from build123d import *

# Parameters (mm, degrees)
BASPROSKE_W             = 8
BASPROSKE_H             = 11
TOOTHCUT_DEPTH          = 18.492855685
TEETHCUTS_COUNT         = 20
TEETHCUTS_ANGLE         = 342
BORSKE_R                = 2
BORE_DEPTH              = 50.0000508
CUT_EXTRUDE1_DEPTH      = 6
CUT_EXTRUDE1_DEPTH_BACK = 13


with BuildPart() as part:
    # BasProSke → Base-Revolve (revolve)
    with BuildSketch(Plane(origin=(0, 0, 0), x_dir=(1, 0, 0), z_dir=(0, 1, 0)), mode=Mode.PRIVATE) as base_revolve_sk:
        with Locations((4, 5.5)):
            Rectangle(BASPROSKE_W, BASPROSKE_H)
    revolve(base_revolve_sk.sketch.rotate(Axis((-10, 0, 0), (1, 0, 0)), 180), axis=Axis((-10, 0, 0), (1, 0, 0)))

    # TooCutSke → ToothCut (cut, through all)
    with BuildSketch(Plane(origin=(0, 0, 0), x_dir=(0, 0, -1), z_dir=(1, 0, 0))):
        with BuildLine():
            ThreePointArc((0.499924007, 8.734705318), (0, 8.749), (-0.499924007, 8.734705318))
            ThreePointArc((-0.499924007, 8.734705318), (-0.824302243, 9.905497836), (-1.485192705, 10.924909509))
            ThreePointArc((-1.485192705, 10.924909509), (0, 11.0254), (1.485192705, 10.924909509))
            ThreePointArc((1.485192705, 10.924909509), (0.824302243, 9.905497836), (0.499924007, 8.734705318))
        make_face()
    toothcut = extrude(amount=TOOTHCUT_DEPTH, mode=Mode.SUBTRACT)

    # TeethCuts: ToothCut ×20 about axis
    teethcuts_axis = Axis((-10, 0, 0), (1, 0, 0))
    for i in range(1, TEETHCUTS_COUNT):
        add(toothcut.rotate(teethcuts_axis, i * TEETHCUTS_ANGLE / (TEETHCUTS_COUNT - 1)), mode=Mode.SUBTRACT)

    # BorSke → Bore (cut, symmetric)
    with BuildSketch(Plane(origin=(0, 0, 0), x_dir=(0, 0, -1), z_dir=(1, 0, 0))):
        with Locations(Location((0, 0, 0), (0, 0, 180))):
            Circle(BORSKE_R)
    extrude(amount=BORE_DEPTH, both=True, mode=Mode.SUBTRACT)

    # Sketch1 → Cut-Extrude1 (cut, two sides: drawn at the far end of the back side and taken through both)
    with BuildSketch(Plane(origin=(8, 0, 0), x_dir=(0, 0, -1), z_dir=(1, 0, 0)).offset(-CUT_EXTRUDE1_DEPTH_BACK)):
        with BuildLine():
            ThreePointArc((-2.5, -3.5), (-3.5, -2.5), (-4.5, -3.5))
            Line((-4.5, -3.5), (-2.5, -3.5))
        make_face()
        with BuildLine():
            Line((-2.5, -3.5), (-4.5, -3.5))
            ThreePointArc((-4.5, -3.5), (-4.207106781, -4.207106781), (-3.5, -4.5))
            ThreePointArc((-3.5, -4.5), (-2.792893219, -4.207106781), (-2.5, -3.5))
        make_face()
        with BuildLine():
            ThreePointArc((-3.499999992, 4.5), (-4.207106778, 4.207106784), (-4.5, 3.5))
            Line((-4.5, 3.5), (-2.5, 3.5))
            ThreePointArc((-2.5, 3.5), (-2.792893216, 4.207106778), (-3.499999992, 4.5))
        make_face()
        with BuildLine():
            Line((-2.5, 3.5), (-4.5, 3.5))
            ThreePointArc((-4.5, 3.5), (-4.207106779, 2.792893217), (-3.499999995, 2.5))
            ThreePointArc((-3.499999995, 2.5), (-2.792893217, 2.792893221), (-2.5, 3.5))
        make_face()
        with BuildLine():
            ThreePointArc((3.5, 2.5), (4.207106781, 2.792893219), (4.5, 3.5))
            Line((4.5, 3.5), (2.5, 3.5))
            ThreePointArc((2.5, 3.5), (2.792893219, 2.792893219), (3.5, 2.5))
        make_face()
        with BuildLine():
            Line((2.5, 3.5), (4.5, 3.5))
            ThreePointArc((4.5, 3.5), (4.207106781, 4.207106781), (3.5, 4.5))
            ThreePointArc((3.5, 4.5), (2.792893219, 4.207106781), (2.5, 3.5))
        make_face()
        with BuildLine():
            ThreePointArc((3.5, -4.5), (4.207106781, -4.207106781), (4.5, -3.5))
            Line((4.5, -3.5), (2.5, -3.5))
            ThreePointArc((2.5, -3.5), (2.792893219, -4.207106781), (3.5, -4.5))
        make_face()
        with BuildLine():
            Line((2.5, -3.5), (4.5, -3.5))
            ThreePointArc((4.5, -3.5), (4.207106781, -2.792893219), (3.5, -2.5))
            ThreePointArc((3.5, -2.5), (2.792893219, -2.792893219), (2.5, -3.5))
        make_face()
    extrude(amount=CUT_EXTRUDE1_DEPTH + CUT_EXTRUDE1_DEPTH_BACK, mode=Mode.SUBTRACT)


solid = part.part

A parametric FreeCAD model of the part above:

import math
import FreeCAD as App
import Part
import Sketcher
from FreeCAD import Vector
Q = App.Units.Quantity


def add_polygon(sketch, points):
    """Adds a closed chain of lines whose ends are joined by coincident constraints."""
    first, n = sketch.GeometryCount, len(points)
    for a, b in zip(points, points[1:] + points[:1]):
        sketch.addGeometry(Part.LineSegment(App.Vector(*a, 0), App.Vector(*b, 0)), False)
    for i in range(n):
        sketch.addConstraint(Sketcher.Constraint("Coincident", first + i, 2, first + (i + 1) % n, 1))

doc = App.newDocument("Part")
body = doc.addObject("PartDesign::Body", "Body")

# Sketch on XZ plane
sketch1 = body.newObject("Sketcher::SketchObject", "Sketch")
sketch1.AttachmentSupport = (doc.getObject("XZ_Plane"), [""])
sketch1.MapMode = "FlatFace"
add_polygon(sketch1, [(0, -11), (0, 0), (8, 0), (8, -11)])  # lines 0-3
sketch1.addConstraint(Sketcher.Constraint("Vertical", 0))
sketch1.addConstraint(Sketcher.Constraint("Horizontal", 1))
sketch1.addConstraint(Sketcher.Constraint("Vertical", 2))
sketch1.addConstraint(Sketcher.Constraint("Horizontal", 3))
sketch1.addConstraint(Sketcher.Constraint("Coincident", 0, 2, -1, 1))
sketch1.addConstraint(Sketcher.Constraint("DistanceX", 1, 1, 1, 2, Q("8 mm")))
sketch1.addConstraint(Sketcher.Constraint("DistanceY", 0, 1, 0, 2, Q("11 mm")))
revolution = body.newObject("PartDesign::Revolution", "Revolution")
revolution.Profile = sketch1
revolution.ReferenceAxis = (sketch1, ["H_Axis"])
revolution.Angle = 360

# Sketch on YZ plane
sketch2 = body.newObject("Sketcher::SketchObject", "Sketch001")
sketch2.AttachmentSupport = (doc.getObject("YZ_Plane"), [""])
sketch2.MapMode = "FlatFace"
sketch2.addGeometry(Part.ArcOfCircle(Part.Circle(Vector(0, 0, 0), Vector(0, 0, 1), 8.749), math.radians(-3.275705), math.radians(3.275705)), False)
sketch2.addGeometry(Part.ArcOfCircle(Part.Circle(Vector(8.264487, -4.47219, 0), Vector(0, 0, 1), 4), math.radians(48.309566), math.radians(83.249005)), False)
sketch2.addGeometry(Part.ArcOfCircle(Part.Circle(Vector(0, 0, 0), Vector(0, 0, 1), 11.0254), math.radians(-7.741647), math.radians(7.741647)), False)
sketch2.addGeometry(Part.ArcOfCircle(Part.Circle(Vector(8.264487, 4.47219, 0), Vector(0, 0, 1), 4), math.radians(-83.249005), math.radians(-48.309566)), False)
sketch2.addConstraint(Sketcher.Constraint("Coincident", 0, 1, 1, 2))
sketch2.addConstraint(Sketcher.Constraint("Coincident", 1, 1, 2, 1))
sketch2.addConstraint(Sketcher.Constraint("Coincident", 2, 2, 3, 2))
sketch2.addConstraint(Sketcher.Constraint("Coincident", 3, 1, 0, 2))
sketch2.addConstraint(Sketcher.Constraint("Coincident", 0, 3, -1, 1))
sketch2.addConstraint(Sketcher.Constraint("Coincident", 2, 3, -1, 1))
sketch2.addConstraint(Sketcher.Constraint("Equal", 1, 3))
sketch2.addConstraint(Sketcher.Constraint("Symmetric", 1, 3, 3, 3, -1))
sketch2.addConstraint(Sketcher.Constraint("Radius", 1, Q("4 mm")))
sketch2.addConstraint(Sketcher.Constraint("Radius", 0, Q("8.749 mm")))
sketch2.addConstraint(Sketcher.Constraint("Radius", 2, Q("11.0254 mm")))
sketch2.addConstraint(Sketcher.Constraint("DistanceY", 1, 3, -1, 1, Q("4.47219 mm")))
sketch2.addConstraint(Sketcher.Constraint("DistanceX", -1, 1, 1, 1, Q("10.92491 mm")))
pocket1 = body.newObject("PartDesign::Pocket", "Pocket")
pocket1.Profile = sketch2
pocket1.Type = "ThroughAll"
pocket1.Reversed = True
doc.recompute()

polarpattern = body.newObject("PartDesign::PolarPattern", "PolarPattern")
polarpattern.Originals = [pocket1]
polarpattern.Axis = (doc.getObject("X_Axis"), [""])
polarpattern.Angle = 360
polarpattern.Occurrences = 20
body.Tip = polarpattern

# Sketch on YZ plane
sketch3 = body.newObject("Sketcher::SketchObject", "Sketch002")
sketch3.AttachmentSupport = (doc.getObject("YZ_Plane"), [""])
sketch3.MapMode = "FlatFace"
sketch3.addGeometry(Part.Circle(Vector(0, 0, 0), Vector(0, 0, 1), 2), False)
sketch3.addConstraint(Sketcher.Constraint("Coincident", 0, 3, -1, 1))
sketch3.addConstraint(Sketcher.Constraint("Diameter", 0, Q("4 mm")))
pocket2 = body.newObject("PartDesign::Pocket", "Pocket001")
pocket2.Profile = sketch3
pocket2.Length = 100.000102
pocket2.Midplane = True

# Sketch on YZ plane
sketch4 = body.newObject("Sketcher::SketchObject", "Sketch003")
sketch4.AttachmentSupport = (doc.getObject("YZ_Plane"), [""])
sketch4.MapMode = "FlatFace"
sketch4.AttachmentOffset = App.Placement(Vector(0, 0, 8), App.Rotation())
sketch4.addGeometry(Part.ArcOfCircle(Part.Circle(Vector(-3.5, 3.5, 0), Vector(0, 0, 1), 1), math.radians(-90), math.radians(90)), False)
sketch4.addGeometry(Part.ArcOfCircle(Part.Circle(Vector(-3.5, 3.5, 0), Vector(0, 0, 1), 1), math.radians(90), math.radians(180)), False)
sketch4.addGeometry(Part.ArcOfCircle(Part.Circle(Vector(-3.5, 3.5, 0), Vector(0, 0, 1), 1), math.radians(-180), math.radians(-90)), False)
sketch4.addGeometry(Part.ArcOfCircle(Part.Circle(Vector(3.5, 3.5, 0), Vector(0, 0, 1), 1), math.radians(0), math.radians(90)), False)
sketch4.addGeometry(Part.ArcOfCircle(Part.Circle(Vector(3.5, 3.5, 0), Vector(0, 0, 1), 1), math.radians(90), math.radians(180)), False)
sketch4.addGeometry(Part.ArcOfCircle(Part.Circle(Vector(3.5, 3.5, 0), Vector(0, 0, 1), 1), math.radians(-180), math.radians(-90)), False)
sketch4.addGeometry(Part.ArcOfCircle(Part.Circle(Vector(3.5, 3.5, 0), Vector(0, 0, 1), 1), math.radians(-90), math.radians(-0.000001)), False)
sketch4.addGeometry(Part.ArcOfCircle(Part.Circle(Vector(3.5, -3.5, 0), Vector(0, 0, 1), 1), math.radians(-180), math.radians(-90)), False)
sketch4.addGeometry(Part.ArcOfCircle(Part.Circle(Vector(3.5, -3.5, 0), Vector(0, 0, 1), 1), math.radians(-90), math.radians(0)), False)
sketch4.addGeometry(Part.ArcOfCircle(Part.Circle(Vector(3.5, -3.5, 0), Vector(0, 0, 1), 1), math.radians(0), math.radians(90)), False)
sketch4.addGeometry(Part.ArcOfCircle(Part.Circle(Vector(3.5, -3.5, 0), Vector(0, 0, 1), 1), math.radians(90), math.radians(180)), False)
sketch4.addGeometry(Part.ArcOfCircle(Part.Circle(Vector(-3.5, -3.5, 0), Vector(0, 0, 1), 1), math.radians(-180), math.radians(-90)), False)
sketch4.addGeometry(Part.ArcOfCircle(Part.Circle(Vector(-3.5, -3.5, 0), Vector(0, 0, 1), 1), math.radians(-90), math.radians(0)), False)
sketch4.addGeometry(Part.ArcOfCircle(Part.Circle(Vector(-3.5, -3.5, 0), Vector(0, 0, 1), 1), math.radians(0), math.radians(90)), False)
sketch4.addGeometry(Part.ArcOfCircle(Part.Circle(Vector(-3.5, -3.5, 0), Vector(0, 0, 1), 1), math.radians(90), math.radians(180)), False)
sketch4.addConstraint(Sketcher.Constraint("Tangent", 0, 2, 1, 1))
sketch4.addConstraint(Sketcher.Constraint("Tangent", 1, 2, 2, 1))
sketch4.addConstraint(Sketcher.Constraint("Tangent", 2, 2, 0, 1))
sketch4.addConstraint(Sketcher.Constraint("Tangent", 3, 2, 4, 1))
sketch4.addConstraint(Sketcher.Constraint("Tangent", 4, 2, 5, 1))
sketch4.addConstraint(Sketcher.Constraint("Tangent", 5, 2, 6, 1))
sketch4.addConstraint(Sketcher.Constraint("Tangent", 6, 2, 3, 1))
sketch4.addConstraint(Sketcher.Constraint("Tangent", 7, 2, 8, 1))
sketch4.addConstraint(Sketcher.Constraint("Tangent", 8, 2, 9, 1))
sketch4.addConstraint(Sketcher.Constraint("Tangent", 9, 2, 10, 1))
sketch4.addConstraint(Sketcher.Constraint("Tangent", 10, 2, 7, 1))
sketch4.addConstraint(Sketcher.Constraint("Tangent", 11, 2, 12, 1))
sketch4.addConstraint(Sketcher.Constraint("Tangent", 12, 2, 13, 1))
sketch4.addConstraint(Sketcher.Constraint("Tangent", 13, 2, 14, 1))
sketch4.addConstraint(Sketcher.Constraint("Tangent", 14, 2, 11, 1))
sketch4.addConstraint(Sketcher.Constraint("Equal", 2, 3))
sketch4.addConstraint(Sketcher.Constraint("Equal", 3, 4))
sketch4.addConstraint(Sketcher.Constraint("Equal", 6, 7))
sketch4.addConstraint(Sketcher.Constraint("Equal", 7, 8))
sketch4.addConstraint(Sketcher.Constraint("Equal", 10, 11))
sketch4.addConstraint(Sketcher.Constraint("Equal", 11, 12))
sketch4.addConstraint(Sketcher.Constraint("Symmetric", 0, 3, 7, 3, -1, 1))
sketch4.addConstraint(Sketcher.Constraint("Symmetric", 3, 3, 11, 3, -1, 1))
sketch4.addConstraint(Sketcher.Constraint("Symmetric", 0, 3, 3, 3, -2))
sketch4.addConstraint(Sketcher.Constraint("Horizontal", 6, 3, 1, 2))
sketch4.addConstraint(Sketcher.Constraint("Horizontal", 1, 2, 4, 2))
sketch4.addConstraint(Sketcher.Constraint("Horizontal", 4, 2, 6, 2))
sketch4.addConstraint(Sketcher.Constraint("Horizontal", 14, 3, 8, 2))
sketch4.addConstraint(Sketcher.Constraint("Horizontal", 8, 2, 10, 2))
sketch4.addConstraint(Sketcher.Constraint("Horizontal", 10, 2, 12, 2))
sketch4.addConstraint(Sketcher.Constraint("Horizontal", 12, 2, 14, 2))
sketch4.addConstraint(Sketcher.Constraint("Vertical", 14, 3, 0, 2))
sketch4.addConstraint(Sketcher.Constraint("Vertical", 0, 2, 2, 2))
sketch4.addConstraint(Sketcher.Constraint("Vertical", 10, 3, 3, 2))
sketch4.addConstraint(Sketcher.Constraint("Vertical", 3, 2, 5, 2))
sketch4.addConstraint(Sketcher.Constraint("Vertical", 5, 2, 7, 2))
sketch4.addConstraint(Sketcher.Constraint("Vertical", 7, 2, 9, 2))
sketch4.addConstraint(Sketcher.Constraint("Vertical", 2, 2, 11, 2))
sketch4.addConstraint(Sketcher.Constraint("Vertical", 11, 2, 13, 2))
sketch4.addConstraint(Sketcher.Constraint("Radius", 0, Q("1 mm")))
sketch4.addConstraint(Sketcher.Constraint("DistanceX", 1, 3, 3, 3, Q("7 mm")))
sketch4.addConstraint(Sketcher.Constraint("DistanceY", 7, 3, 3, 3, Q("7 mm")))
pocket3 = body.newObject("PartDesign::Pocket", "Pocket002")
pocket3.Profile = sketch4
pocket3.Type = "ThroughAll"
pocket3.Midplane = True

doc.recompute()
